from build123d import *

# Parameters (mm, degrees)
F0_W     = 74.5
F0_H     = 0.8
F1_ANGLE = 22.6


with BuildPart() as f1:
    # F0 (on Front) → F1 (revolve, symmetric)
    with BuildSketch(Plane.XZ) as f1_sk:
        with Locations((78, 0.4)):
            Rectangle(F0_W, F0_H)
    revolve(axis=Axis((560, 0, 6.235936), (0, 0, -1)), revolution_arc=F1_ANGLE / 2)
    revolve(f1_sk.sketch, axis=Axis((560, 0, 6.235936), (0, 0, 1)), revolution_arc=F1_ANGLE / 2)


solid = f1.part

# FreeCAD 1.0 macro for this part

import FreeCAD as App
import Part
import Sketcher

V = App.Vector
Q = App.Units.Quantity


def add_polygon(sketch, points):
    """Adds a closed chain of lines whose ends are joined by coincident constraints."""
    first, n = sketch.GeometryCount, len(points)
    for a, b in zip(points, points[1:] + points[:1]):
        sketch.addGeometry(Part.LineSegment(App.Vector(*a, 0), App.Vector(*b, 0)), False)
    for i in range(n):
        sketch.addConstraint(Sketcher.Constraint("Coincident", first + i, 2, first + (i + 1) % n, 1))

doc = App.newDocument("Part")
body = doc.addObject("PartDesign::Body", "Body")

# Sketch on XZ plane
sketch1 = body.newObject("Sketcher::SketchObject", "Sketch")
sketch1.AttachmentSupport = (doc.getObject("XZ_Plane"), [""])
sketch1.MapMode = "FlatFace"
add_polygon(sketch1, [(40.8, 0.8), (40.8, 0), (115.2, 0), (115.2, 0.8)])  # lines 0-3
sketch1.addGeometry(Part.LineSegment(V(560, 0.8, 0), V(560, 0, 0)), True)  # axis
sketch1.addConstraint([
    Sketcher.Constraint("Vertical", 0),
    Sketcher.Constraint("Horizontal", 1),
    Sketcher.Constraint("Vertical", 2),
    Sketcher.Constraint("Horizontal", 3),
    Sketcher.Constraint("Vertical", 4),
    Sketcher.Constraint("PointOnObject", 0, 2, -1),
    Sketcher.Constraint("PointOnObject", 4, 2, -1),
    Sketcher.Constraint("Horizontal", 3, 2, 4, 1),
    Sketcher.Constraint("DistanceX", 1, 1, 1, 2, Q("74.5 mm")),
    Sketcher.Constraint("DistanceY", 0, 2, 0, 1, Q("0.8 mm")),
    Sketcher.Constraint("DistanceX", -1, 1, 4, 1, Q("560 mm")),
    Sketcher.Constraint("DistanceX", -1, 1, 0, 2, Q("40.75 mm")),
])
revolution = body.newObject("PartDesign::Revolution", "Revolution")
revolution.Profile = sketch1
revolution.ReferenceAxis = (sketch1, ["Axis0"])
revolution.Angle = 11.3

# Sketch on XZ plane
sketch2 = body.newObject("Sketcher::SketchObject", "Sketch001")
sketch2.AttachmentSupport = (doc.getObject("XZ_Plane"), [""])
sketch2.MapMode = "FlatFace"
add_polygon(sketch2, [(40.8, 0.8), (40.8, 0), (115.2, 0), (115.2, 0.8)])  # lines 0-3
sketch2.addGeometry(Part.LineSegment(V(560, 0, 0), V(560, 0.8, 0)), True)  # axis
sketch2.addConstraint([
    Sketcher.Constraint("Vertical", 0),
    Sketcher.Constraint("Horizontal", 1),
    Sketcher.Constraint("Vertical", 2),
    Sketcher.Constraint("Horizontal", 3),
    Sketcher.Constraint("Vertical", 4),
    Sketcher.Constraint("PointOnObject", 0, 2, -1),
    Sketcher.Constraint("PointOnObject", 4, 1, -1),
    Sketcher.Constraint("Horizontal", 3, 2, 4, 2),
    Sketcher.Constraint("DistanceX", 1, 1, 1, 2, Q("74.5 mm")),
    Sketcher.Constraint("DistanceY", 0, 2, 0, 1, Q("0.8 mm")),
    Sketcher.Constraint("DistanceX", -1, 1, 4, 1, Q("560 mm")),
    Sketcher.Constraint("DistanceX", -1, 1, 0, 2, Q("40.75 mm")),
])
revolution2 = body.newObject("PartDesign::Revolution", "Revolution001")
revolution2.Profile = sketch2
revolution2.ReferenceAxis = (sketch2, ["Axis0"])
revolution2.Angle = 11.3

doc.recompute()
